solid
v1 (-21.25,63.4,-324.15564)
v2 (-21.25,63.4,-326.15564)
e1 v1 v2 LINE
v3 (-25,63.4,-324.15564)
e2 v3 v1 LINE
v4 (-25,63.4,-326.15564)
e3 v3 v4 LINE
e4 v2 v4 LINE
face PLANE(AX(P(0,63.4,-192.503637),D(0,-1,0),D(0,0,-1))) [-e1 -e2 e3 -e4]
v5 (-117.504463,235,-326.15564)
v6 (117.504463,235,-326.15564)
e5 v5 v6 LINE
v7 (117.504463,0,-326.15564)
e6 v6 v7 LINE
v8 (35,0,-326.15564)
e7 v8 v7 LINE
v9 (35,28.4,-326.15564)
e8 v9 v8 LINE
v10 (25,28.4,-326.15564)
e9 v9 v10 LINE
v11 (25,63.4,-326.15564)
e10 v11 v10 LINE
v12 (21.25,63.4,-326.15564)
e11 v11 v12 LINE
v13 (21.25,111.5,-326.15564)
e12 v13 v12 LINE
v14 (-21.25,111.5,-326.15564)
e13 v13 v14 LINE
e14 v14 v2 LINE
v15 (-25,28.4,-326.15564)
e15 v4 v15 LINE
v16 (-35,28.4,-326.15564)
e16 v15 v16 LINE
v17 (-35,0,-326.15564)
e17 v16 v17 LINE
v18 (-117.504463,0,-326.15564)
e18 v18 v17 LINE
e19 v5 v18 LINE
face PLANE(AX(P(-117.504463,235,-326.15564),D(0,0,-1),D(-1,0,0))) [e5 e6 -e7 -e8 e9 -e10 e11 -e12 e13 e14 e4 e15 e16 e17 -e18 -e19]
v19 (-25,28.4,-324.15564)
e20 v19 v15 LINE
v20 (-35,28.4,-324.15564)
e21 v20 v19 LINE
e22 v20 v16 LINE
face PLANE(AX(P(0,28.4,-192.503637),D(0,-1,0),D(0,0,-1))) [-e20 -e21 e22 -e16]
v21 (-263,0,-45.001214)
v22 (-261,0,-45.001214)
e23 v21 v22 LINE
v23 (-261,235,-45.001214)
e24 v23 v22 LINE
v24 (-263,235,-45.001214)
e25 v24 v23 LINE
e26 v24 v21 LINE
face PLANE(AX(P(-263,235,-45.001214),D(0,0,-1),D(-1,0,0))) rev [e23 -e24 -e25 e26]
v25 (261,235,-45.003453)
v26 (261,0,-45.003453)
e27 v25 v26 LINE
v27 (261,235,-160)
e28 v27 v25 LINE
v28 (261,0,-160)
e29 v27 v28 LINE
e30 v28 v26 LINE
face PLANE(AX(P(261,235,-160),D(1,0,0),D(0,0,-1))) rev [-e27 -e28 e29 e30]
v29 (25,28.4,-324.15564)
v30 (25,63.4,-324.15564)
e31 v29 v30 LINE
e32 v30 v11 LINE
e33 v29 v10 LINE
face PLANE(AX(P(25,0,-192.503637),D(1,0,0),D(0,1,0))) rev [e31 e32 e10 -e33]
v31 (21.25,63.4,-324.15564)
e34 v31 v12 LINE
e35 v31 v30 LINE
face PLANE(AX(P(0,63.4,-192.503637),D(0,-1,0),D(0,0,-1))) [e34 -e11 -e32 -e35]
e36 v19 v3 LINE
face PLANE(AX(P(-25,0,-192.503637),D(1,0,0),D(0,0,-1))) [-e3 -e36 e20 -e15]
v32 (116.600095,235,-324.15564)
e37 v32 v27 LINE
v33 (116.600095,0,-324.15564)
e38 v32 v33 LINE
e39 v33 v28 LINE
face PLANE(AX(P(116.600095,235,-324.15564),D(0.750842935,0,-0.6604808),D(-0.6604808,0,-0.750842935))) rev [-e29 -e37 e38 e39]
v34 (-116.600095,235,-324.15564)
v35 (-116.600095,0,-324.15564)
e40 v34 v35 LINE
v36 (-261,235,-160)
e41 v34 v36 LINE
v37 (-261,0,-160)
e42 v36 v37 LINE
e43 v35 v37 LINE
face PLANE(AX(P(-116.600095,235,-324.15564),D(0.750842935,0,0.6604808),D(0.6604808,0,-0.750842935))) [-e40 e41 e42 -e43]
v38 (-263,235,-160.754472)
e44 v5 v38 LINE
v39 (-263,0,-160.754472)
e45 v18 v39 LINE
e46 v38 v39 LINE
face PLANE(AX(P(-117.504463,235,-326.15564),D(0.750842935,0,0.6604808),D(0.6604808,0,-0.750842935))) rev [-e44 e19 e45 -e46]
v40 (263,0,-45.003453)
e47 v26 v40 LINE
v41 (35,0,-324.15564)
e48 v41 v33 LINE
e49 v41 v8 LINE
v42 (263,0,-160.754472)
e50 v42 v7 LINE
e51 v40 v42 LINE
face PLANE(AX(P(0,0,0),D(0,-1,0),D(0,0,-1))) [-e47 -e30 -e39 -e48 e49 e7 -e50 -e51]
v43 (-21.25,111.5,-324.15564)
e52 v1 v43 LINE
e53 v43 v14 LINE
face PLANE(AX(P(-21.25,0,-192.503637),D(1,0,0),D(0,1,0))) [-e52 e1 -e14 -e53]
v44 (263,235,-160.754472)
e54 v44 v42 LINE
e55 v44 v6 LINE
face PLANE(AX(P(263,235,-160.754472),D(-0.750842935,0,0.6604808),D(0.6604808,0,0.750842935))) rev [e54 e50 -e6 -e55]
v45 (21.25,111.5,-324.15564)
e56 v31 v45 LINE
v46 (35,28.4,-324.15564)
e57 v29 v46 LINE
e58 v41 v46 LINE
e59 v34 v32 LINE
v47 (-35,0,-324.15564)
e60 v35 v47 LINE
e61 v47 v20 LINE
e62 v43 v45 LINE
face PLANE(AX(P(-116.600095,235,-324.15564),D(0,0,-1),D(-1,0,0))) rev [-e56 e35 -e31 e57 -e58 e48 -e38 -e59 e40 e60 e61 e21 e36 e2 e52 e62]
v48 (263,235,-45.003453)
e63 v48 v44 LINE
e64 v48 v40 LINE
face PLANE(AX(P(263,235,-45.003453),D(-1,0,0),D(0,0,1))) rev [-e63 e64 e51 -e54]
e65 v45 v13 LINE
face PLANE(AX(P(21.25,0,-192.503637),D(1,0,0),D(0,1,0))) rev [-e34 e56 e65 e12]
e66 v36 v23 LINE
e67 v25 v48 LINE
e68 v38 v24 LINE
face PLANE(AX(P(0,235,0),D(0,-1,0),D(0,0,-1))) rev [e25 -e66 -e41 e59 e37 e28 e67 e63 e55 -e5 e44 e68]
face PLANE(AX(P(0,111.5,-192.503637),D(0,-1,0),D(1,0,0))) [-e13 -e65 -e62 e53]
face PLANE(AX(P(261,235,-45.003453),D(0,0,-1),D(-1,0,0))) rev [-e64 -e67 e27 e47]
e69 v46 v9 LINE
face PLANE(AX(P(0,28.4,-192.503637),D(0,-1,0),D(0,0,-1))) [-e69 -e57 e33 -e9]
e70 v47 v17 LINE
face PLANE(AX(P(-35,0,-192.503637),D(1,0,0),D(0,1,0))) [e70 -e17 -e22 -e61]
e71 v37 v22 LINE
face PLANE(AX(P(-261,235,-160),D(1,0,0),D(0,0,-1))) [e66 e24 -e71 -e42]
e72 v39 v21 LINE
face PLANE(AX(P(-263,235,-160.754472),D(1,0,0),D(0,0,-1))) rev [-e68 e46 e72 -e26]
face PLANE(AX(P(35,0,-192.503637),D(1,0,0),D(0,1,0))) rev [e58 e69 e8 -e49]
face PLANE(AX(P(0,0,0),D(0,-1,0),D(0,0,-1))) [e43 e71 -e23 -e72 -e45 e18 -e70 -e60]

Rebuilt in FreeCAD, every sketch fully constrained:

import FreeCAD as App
import Part
import Sketcher


def add_polygon(sketch, points):
    """Adds a closed chain of lines whose ends are joined by coincident constraints."""
    first, n = sketch.GeometryCount, len(points)
    for a, b in zip(points, points[1:] + points[:1]):
        sketch.addGeometry(Part.LineSegment(App.Vector(*a, 0), App.Vector(*b, 0)), False)
    for i in range(n):
        sketch.addConstraint(Sketcher.Constraint("Coincident", first + i, 2, first + (i + 1) % n, 1))

doc = App.newDocument("Part")
body = doc.addObject("PartDesign::Body", "Body")

sketch1 = doc.addObject("Sketcher::SketchObject", "Sketch")
body.addObject(sketch1)
sketch1.AttachmentSupport = (doc.XZ_Plane, [""])
sketch1.MapMode = "FlatFace"
add_polygon(sketch1, [(117.5, -326.2), (-117.5, -326.2), (-263, -160.8), (-263, -45), (-261, -45), (-261, -160), (-116.6, -324.2), (116.6, -324.2), (261, -160), (261, -45), (263, -45), (263, -160.8)])
sketch1.addConstraint([
    Sketcher.Constraint("Horizontal", 0),
    Sketcher.Constraint("Vertical", 2),
    Sketcher.Constraint("Horizontal", 3),
    Sketcher.Constraint("Vertical", 4),
    Sketcher.Constraint("Horizontal", 6),
    Sketcher.Constraint("Vertical", 8),
    Sketcher.Constraint("Horizontal", 9),
    Sketcher.Constraint("Vertical", 10),
    Sketcher.Constraint("Symmetric", 4, 2, 7, 2, -2),
    Sketcher.Constraint("Symmetric", 1, 2, 10, 2, -2),
    Sketcher.Constraint("Parallel", 1, 5),
    Sketcher.Constraint("Parallel", 7, 11),
    Sketcher.Constraint("Equal", 5, 7),
    Sketcher.Constraint("DistanceX", 3, 1, 3, 2, 2.0),
    Sketcher.Constraint("DistanceX", 1, 2, -1, 1, 263.0),
    Sketcher.Constraint("DistanceY", 4, 2, -1, 1, 160.0),
    Sketcher.Constraint("DistanceY", 0, 2, 5, 2, 2.0),
    Sketcher.Constraint("DistanceX", 6, 1, 6, 2, 233.20019),
    Sketcher.Constraint("DistanceY", 10, 2, 10, 1, 115.751019),
    Sketcher.Constraint("DistanceX", 0, 2, 0, 1, 235.008926),
    Sketcher.Constraint("DistanceY", 2, 1, 2, 2, 115.753257),
    Sketcher.Constraint("DistanceY", 0, 2, -1, 1, 326.15564),
])
pad1 = doc.addObject("PartDesign::Pad", "Pad")
body.addObject(pad1)
pad1.Profile = sketch1
pad1.Length = 235
pad1.Reversed = True

sketch2 = doc.addObject("Sketcher::SketchObject", "Sketch001")
body.addObject(sketch2)
sketch2.AttachmentSupport = (doc.XY_Plane, [""])
sketch2.MapMode = "FlatFace"
sketch2.AttachmentOffset = App.Placement(App.Vector(0, 0, -326.15564), App.Rotation())
add_polygon(sketch2, [(21.2, 111.5), (21.2, 63.4), (25, 63.4), (25, 28.4), (35, 28.4), (35, 0), (-35, 0), (-35, 28.4), (-25, 28.4), (-25, 63.4), (-21.2, 63.4), (-21.2, 111.5)])
sketch2.addConstraint([
    Sketcher.Constraint("Vertical", 0),
    Sketcher.Constraint("Horizontal", 1),
    Sketcher.Constraint("Vertical", 2),
    Sketcher.Constraint("Horizontal", 3),
    Sketcher.Constraint("Vertical", 4),
    Sketcher.Constraint("Horizontal", 5),
    Sketcher.Constraint("Vertical", 6),
    Sketcher.Constraint("Horizontal", 7),
    Sketcher.Constraint("Vertical", 8),
    Sketcher.Constraint("Horizontal", 9),
    Sketcher.Constraint("Vertical", 10),
    Sketcher.Constraint("Horizontal", 11),
    Sketcher.Constraint("Symmetric", 4, 2, 5, 2, -1, 1),
    Sketcher.Constraint("Symmetric", 2, 2, 7, 2, -2),
    Sketcher.Constraint("Symmetric", 0, 2, 9, 2, -2),
    Sketcher.Constraint("DistanceX", 3, 1, 3, 2, 10.0),
    Sketcher.Constraint("DistanceX", 5, 2, 5, 1, 70.0),
    Sketcher.Constraint("DistanceY", 2, 2, 2, 1, 35.0),
    Sketcher.Constraint("DistanceX", 11, 1, 11, 2, 42.5),
    Sketcher.Constraint("DistanceY", 0, 2, 0, 1, 48.1),
    Sketcher.Constraint("DistanceY", 4, 2, 4, 1, 28.4),
])
pocket1 = doc.addObject("PartDesign::Pocket", "Pocket")
body.addObject(pocket1)
pocket1.Profile = sketch2
pocket1.Length = 2
pocket1.Reversed = True

doc.recompute()
